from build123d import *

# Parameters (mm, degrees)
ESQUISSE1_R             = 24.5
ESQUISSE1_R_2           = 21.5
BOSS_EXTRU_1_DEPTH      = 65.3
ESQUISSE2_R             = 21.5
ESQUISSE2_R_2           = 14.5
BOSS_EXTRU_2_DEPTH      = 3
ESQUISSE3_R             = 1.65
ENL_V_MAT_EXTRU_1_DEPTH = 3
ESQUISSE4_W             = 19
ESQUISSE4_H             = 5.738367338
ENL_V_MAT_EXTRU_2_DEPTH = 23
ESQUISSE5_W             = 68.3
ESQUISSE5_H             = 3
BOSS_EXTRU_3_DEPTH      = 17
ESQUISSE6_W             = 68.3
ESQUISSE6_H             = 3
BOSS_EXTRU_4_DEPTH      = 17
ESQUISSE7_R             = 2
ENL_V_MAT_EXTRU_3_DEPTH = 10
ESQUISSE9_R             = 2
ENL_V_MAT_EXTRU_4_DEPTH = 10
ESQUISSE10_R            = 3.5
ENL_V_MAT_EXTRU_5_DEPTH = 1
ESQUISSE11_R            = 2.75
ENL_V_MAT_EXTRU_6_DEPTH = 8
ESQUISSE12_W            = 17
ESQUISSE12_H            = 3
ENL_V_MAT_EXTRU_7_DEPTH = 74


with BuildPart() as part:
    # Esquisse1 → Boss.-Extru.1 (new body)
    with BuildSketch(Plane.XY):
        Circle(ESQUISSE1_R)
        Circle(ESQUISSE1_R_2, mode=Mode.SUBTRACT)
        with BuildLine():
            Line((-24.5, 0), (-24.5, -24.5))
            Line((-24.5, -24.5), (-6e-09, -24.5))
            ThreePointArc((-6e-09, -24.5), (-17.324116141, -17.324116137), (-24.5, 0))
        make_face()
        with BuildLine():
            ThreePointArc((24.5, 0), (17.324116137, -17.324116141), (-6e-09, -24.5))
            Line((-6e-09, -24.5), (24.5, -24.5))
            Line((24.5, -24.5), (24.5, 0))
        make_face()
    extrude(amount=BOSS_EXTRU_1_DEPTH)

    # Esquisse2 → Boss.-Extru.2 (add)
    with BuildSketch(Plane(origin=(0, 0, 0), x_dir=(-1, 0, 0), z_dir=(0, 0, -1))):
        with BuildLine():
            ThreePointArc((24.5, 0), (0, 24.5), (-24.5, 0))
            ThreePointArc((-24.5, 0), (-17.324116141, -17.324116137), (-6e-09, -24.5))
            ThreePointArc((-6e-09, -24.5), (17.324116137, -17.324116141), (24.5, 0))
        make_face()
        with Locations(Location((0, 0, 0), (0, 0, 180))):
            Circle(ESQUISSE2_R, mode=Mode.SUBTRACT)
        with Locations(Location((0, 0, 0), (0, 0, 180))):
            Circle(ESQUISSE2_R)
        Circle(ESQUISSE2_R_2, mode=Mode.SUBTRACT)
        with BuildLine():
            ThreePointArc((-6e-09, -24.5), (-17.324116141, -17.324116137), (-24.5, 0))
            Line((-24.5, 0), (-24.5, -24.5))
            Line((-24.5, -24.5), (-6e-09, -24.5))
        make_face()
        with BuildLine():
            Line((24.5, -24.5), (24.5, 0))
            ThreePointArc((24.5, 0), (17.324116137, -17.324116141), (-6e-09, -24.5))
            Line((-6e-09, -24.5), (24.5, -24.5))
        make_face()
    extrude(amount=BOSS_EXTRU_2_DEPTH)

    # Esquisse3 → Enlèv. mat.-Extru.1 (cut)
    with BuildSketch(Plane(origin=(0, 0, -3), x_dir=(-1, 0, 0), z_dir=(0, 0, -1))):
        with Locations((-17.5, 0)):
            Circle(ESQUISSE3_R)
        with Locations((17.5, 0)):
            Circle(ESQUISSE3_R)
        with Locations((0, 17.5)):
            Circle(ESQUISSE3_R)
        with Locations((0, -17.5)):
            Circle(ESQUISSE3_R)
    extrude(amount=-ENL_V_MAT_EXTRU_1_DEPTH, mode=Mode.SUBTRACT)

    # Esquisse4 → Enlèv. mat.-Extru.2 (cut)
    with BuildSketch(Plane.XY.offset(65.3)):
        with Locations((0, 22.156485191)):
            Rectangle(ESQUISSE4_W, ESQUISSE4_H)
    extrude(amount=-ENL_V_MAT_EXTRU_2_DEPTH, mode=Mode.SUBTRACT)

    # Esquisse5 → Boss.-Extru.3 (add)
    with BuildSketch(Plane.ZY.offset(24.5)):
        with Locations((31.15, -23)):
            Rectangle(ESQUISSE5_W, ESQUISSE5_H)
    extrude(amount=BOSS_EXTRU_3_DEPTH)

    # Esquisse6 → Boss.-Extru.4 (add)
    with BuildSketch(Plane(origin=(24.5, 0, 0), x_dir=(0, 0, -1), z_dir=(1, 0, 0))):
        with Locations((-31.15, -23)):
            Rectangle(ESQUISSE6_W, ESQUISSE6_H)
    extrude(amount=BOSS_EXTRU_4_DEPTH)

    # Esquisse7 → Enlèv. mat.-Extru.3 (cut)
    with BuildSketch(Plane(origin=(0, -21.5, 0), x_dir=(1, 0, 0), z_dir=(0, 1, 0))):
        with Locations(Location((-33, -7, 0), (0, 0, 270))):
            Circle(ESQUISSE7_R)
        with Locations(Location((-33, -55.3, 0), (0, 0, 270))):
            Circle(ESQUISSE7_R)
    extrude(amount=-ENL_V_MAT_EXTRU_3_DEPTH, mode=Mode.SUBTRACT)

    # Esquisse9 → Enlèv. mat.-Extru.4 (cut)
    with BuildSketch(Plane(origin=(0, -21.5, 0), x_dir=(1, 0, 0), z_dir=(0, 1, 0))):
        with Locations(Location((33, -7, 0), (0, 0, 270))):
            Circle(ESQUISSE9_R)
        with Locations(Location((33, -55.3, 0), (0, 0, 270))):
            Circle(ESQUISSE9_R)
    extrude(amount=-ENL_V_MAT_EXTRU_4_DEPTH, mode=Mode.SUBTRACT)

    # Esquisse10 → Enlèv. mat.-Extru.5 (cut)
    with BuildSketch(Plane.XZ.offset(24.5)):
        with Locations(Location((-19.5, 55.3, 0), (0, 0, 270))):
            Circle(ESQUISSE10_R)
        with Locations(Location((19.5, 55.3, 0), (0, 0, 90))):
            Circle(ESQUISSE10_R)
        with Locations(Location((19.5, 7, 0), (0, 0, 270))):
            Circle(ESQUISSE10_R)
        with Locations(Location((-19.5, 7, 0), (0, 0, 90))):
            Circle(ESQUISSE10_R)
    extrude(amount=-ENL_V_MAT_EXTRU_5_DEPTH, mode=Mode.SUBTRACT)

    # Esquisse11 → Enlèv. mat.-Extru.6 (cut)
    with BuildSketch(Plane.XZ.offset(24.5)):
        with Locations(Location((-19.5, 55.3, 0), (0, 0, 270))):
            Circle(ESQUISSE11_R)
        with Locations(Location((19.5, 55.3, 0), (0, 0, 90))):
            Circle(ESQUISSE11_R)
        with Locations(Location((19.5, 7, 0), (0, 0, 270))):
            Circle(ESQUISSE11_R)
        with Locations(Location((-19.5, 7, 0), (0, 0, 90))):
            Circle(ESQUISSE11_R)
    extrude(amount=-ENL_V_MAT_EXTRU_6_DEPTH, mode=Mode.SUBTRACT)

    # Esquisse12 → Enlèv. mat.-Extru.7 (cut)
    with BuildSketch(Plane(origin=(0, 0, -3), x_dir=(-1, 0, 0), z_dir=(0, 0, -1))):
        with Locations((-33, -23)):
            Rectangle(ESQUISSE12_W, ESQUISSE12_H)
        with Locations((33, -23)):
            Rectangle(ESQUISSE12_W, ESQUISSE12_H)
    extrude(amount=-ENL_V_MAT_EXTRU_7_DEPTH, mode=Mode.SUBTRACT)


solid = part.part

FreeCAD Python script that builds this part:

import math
import FreeCAD as App
import Part
import Sketcher

V = App.Vector
Q = App.Units.Quantity

doc = App.newDocument("Part")
body = doc.addObject("PartDesign::Body", "Body")

sketch1 = body.newObject("Sketcher::SketchObject", "Sketch")
sketch1.AttachmentSupport = (doc.getObject("XY_Plane"), [""])
sketch1.MapMode = "FlatFace"
sketch1.addGeometry(Part.LineSegment(V(-24.5, 0, 0), V(-24.5, -24.5, 0)), False)
sketch1.addGeometry(Part.LineSegment(V(-24.5, -24.5, 0), V(24.5, -24.5, 0)), False)
sketch1.addGeometry(Part.LineSegment(V(24.5, -24.5, 0), V(24.5, 0, 0)), False)
sketch1.addGeometry(Part.ArcOfCircle(Part.Circle(V(0, 0, 0), V(0, 0, 1), 24.5), math.radians(0), math.radians(180)), False)
sketch1.addGeometry(Part.Circle(V(0, 0, 0), V(0, 0, 1), 21.5), False)
sketch1.addConstraint(Sketcher.Constraint("Coincident", 0, 2, 1, 1))
sketch1.addConstraint(Sketcher.Constraint("Coincident", 1, 2, 2, 1))
sketch1.addConstraint(Sketcher.Constraint("Tangent", 2, 2, 3, 1))
sketch1.addConstraint(Sketcher.Constraint("Tangent", 3, 2, 0, 1))
sketch1.addConstraint(Sketcher.Constraint("Vertical", 0))
sketch1.addConstraint(Sketcher.Constraint("Horizontal", 1))
sketch1.addConstraint(Sketcher.Constraint("Vertical", 2))
sketch1.addConstraint(Sketcher.Constraint("Coincident", 3, 3, -1, 1))
sketch1.addConstraint(Sketcher.Constraint("Coincident", 4, 3, -1, 1))
sketch1.addConstraint(Sketcher.Constraint("Diameter", 4, Q("43 mm")))
sketch1.addConstraint(Sketcher.Constraint("Radius", 3, Q("24.5 mm")))
sketch1.addConstraint(Sketcher.Constraint("DistanceY", 0, 2, 0, 1, Q("24.5 mm")))
pad1 = body.newObject("PartDesign::Pad", "Pad")
pad1.Profile = sketch1
pad1.Length = 65.3

sketch2 = body.newObject("Sketcher::SketchObject", "Sketch001")
sketch2.AttachmentSupport = (doc.getObject("XY_Plane"), [""])
sketch2.MapMode = "FlatFace"
sketch2.addGeometry(Part.ArcOfCircle(Part.Circle(V(0, 0, 0), V(0, 0, 1), 24.5), math.radians(0), math.radians(180)), False)
sketch2.addGeometry(Part.LineSegment(V(24.5, 0, 0), V(24.5, -24.5, 0)), False)
sketch2.addGeometry(Part.LineSegment(V(24.5, -24.5, 0), V(-24.5, -24.5, 0)), False)
sketch2.addGeometry(Part.LineSegment(V(-24.5, -24.5, 0), V(-24.5, 0, 0)), False)
sketch2.addGeometry(Part.Circle(V(0, 0, 0), V(0, 0, 1), 14.5), False)
sketch2.addConstraint(Sketcher.Constraint("Tangent", 0, 1, 1, 1))
sketch2.addConstraint(Sketcher.Constraint("Coincident", 1, 2, 2, 1))
sketch2.addConstraint(Sketcher.Constraint("Coincident", 2, 2, 3, 1))
sketch2.addConstraint(Sketcher.Constraint("Tangent", 3, 2, 0, 2))
sketch2.addConstraint(Sketcher.Constraint("Vertical", 1))
sketch2.addConstraint(Sketcher.Constraint("Horizontal", 2))
sketch2.addConstraint(Sketcher.Constraint("Vertical", 3))
sketch2.addConstraint(Sketcher.Constraint("Coincident", 0, 3, -1, 1))
sketch2.addConstraint(Sketcher.Constraint("Coincident", 4, 3, -1, 1))
sketch2.addConstraint(Sketcher.Constraint("Diameter", 4, Q("29 mm")))
sketch2.addConstraint(Sketcher.Constraint("Radius", 0, Q("24.5 mm")))
sketch2.addConstraint(Sketcher.Constraint("DistanceY", 1, 2, 1, 1, Q("24.5 mm")))
pad2 = body.newObject("PartDesign::Pad", "Pad001")
pad2.Profile = sketch2
pad2.Length = 3
pad2.Reversed = True

sketch3 = body.newObject("Sketcher::SketchObject", "Sketch002")
sketch3.AttachmentSupport = (doc.getObject("XY_Plane"), [""])
sketch3.MapMode = "FlatFace"
sketch3.AttachmentOffset = App.Placement(V(0, 0, -3), App.Rotation())
sketch3.addGeometry(Part.Circle(V(17.5, 0, 0), V(0, 0, 1), 1.65), False)
sketch3.addGeometry(Part.Circle(V(-17.5, 0, 0), V(0, 0, 1), 1.65), False)
sketch3.addGeometry(Part.Circle(V(0, 17.5, 0), V(0, 0, 1), 1.65), False)
sketch3.addGeometry(Part.Circle(V(0, -17.5, 0), V(0, 0, 1), 1.65), False)
sketch3.addConstraint(Sketcher.Constraint("Equal", 0, 1))
sketch3.addConstraint(Sketcher.Constraint("Equal", 1, 2))
sketch3.addConstraint(Sketcher.Constraint("Equal", 2, 3))
sketch3.addConstraint(Sketcher.Constraint("Symmetric", 0, 3, 1, 3, -1, 1))
sketch3.addConstraint(Sketcher.Constraint("Symmetric", 2, 3, 3, 3, -1, 1))
sketch3.addConstraint(Sketcher.Constraint("PointOnObject", 0, 3, -1))
sketch3.addConstraint(Sketcher.Constraint("PointOnObject", 2, 3, -2))
sketch3.addConstraint(Sketcher.Constraint("Diameter", 0, Q("3.3 mm")))
sketch3.addConstraint(Sketcher.Constraint("DistanceX", 1, 3, 0, 3, Q("35 mm")))
sketch3.addConstraint(Sketcher.Constraint("DistanceY", 3, 3, 2, 3, Q("35 mm")))
pocket1 = body.newObject("PartDesign::Pocket", "Pocket")
pocket1.Profile = sketch3
pocket1.Length = 3
pocket1.Reversed = True

sketch4 = body.newObject("Sketcher::SketchObject", "Sketch003")
sketch4.AttachmentSupport = (doc.getObject("XY_Plane"), [""])
sketch4.MapMode = "FlatFace"
sketch4.AttachmentOffset = App.Placement(V(0, 0, 65.3), App.Rotation())
sketch4.addGeometry(Part.LineSegment(V(-9.5, 25.025669, 0), V(-9.5, 19.287302, 0)), False)
sketch4.addGeometry(Part.LineSegment(V(-9.5, 19.287302, 0), V(9.5, 19.287302, 0)), False)
sketch4.addGeometry(Part.LineSegment(V(9.5, 19.287302, 0), V(9.5, 25.025669, 0)), False)
sketch4.addGeometry(Part.LineSegment(V(9.5, 25.025669, 0), V(-9.5, 25.025669, 0)), False)
sketch4.addConstraint(Sketcher.Constraint("Coincident", 0, 2, 1, 1))
sketch4.addConstraint(Sketcher.Constraint("Coincident", 1, 2, 2, 1))
sketch4.addConstraint(Sketcher.Constraint("Coincident", 2, 2, 3, 1))
sketch4.addConstraint(Sketcher.Constraint("Coincident", 3, 2, 0, 1))
sketch4.addConstraint(Sketcher.Constraint("Vertical", 0))
sketch4.addConstraint(Sketcher.Constraint("Horizontal", 1))
sketch4.addConstraint(Sketcher.Constraint("Vertical", 2))
sketch4.addConstraint(Sketcher.Constraint("Horizontal", 3))
sketch4.addConstraint(Sketcher.Constraint("DistanceX", 1, 1, 1, 2, Q("19 mm")))
sketch4.addConstraint(Sketcher.Constraint("DistanceX", 0, 2, -1, 1, Q("9.5 mm")))
sketch4.addConstraint(Sketcher.Constraint("DistanceY", -1, 1, 0, 2, Q("19.287302 mm")))
sketch4.addConstraint(Sketcher.Constraint("DistanceY", 0, 2, 0, 1, Q("5.738367 mm")))
pocket2 = body.newObject("PartDesign::Pocket", "Pocket001")
pocket2.Profile = sketch4
pocket2.Length = 23

sketch5 = body.newObject("Sketcher::SketchObject", "Sketch004")
sketch5.AttachmentSupport = (doc.getObject("YZ_Plane"), [""])
sketch5.MapMode = "FlatFace"
sketch5.AttachmentOffset = App.Placement(V(0, 0, -24.5), App.Rotation())
sketch5.addGeometry(Part.LineSegment(V(-21.5, -3, 0), V(-24.5, -3, 0)), False)
sketch5.addGeometry(Part.LineSegment(V(-24.5, -3, 0), V(-24.5, 65.3, 0)), False)
sketch5.addGeometry(Part.LineSegment(V(-24.5, 65.3, 0), V(-21.5, 65.3, 0)), False)
sketch5.addGeometry(Part.LineSegment(V(-21.5, 65.3, 0), V(-21.5, -3, 0)), False)
sketch5.addConstraint(Sketcher.Constraint("Coincident", 0, 2, 1, 1))
sketch5.addConstraint(Sketcher.Constraint("Coincident", 1, 2, 2, 1))
sketch5.addConstraint(Sketcher.Constraint("Coincident", 2, 2, 3, 1))
sketch5.addConstraint(Sketcher.Constraint("Coincident", 3, 2, 0, 1))
sketch5.addConstraint(Sketcher.Constraint("Horizontal", 0))
sketch5.addConstraint(Sketcher.Constraint("Vertical", 1))
sketch5.addConstraint(Sketcher.Constraint("Horizontal", 2))
sketch5.addConstraint(Sketcher.Constraint("Vertical", 3))
sketch5.addConstraint(Sketcher.Constraint("DistanceX", 0, 2, 0, 1, Q("3 mm")))
sketch5.addConstraint(Sketcher.Constraint("DistanceY", 1, 1, 1, 2, Q("68.3 mm")))
sketch5.addConstraint(Sketcher.Constraint("DistanceY", 0, 2, -1, 1, Q("3 mm")))
sketch5.addConstraint(Sketcher.Constraint("DistanceX", 0, 2, -1, 1, Q("24.5 mm")))
pad3 = body.newObject("PartDesign::Pad", "Pad002")
pad3.Profile = sketch5
pad3.Length = 17
pad3.Reversed = True

sketch6 = body.newObject("Sketcher::SketchObject", "Sketch005")
sketch6.AttachmentSupport = (doc.getObject("YZ_Plane"), [""])
sketch6.MapMode = "FlatFace"
sketch6.AttachmentOffset = App.Placement(V(0, 0, 24.5), App.Rotation())
sketch6.addGeometry(Part.LineSegment(V(-21.5, 65.3, 0), V(-24.5, 65.3, 0)), False)
sketch6.addGeometry(Part.LineSegment(V(-24.5, 65.3, 0), V(-24.5, -3, 0)), False)
sketch6.addGeometry(Part.LineSegment(V(-24.5, -3, 0), V(-21.5, -3, 0)), False)
sketch6.addGeometry(Part.LineSegment(V(-21.5, -3, 0), V(-21.5, 65.3, 0)), False)
sketch6.addConstraint(Sketcher.Constraint("Coincident", 0, 2, 1, 1))
sketch6.addConstraint(Sketcher.Constraint("Coincident", 1, 2, 2, 1))
sketch6.addConstraint(Sketcher.Constraint("Coincident", 2, 2, 3, 1))
sketch6.addConstraint(Sketcher.Constraint("Coincident", 3, 2, 0, 1))
sketch6.addConstraint(Sketcher.Constraint("Horizontal", 0))
sketch6.addConstraint(Sketcher.Constraint("Vertical", 1))
sketch6.addConstraint(Sketcher.Constraint("Horizontal", 2))
sketch6.addConstraint(Sketcher.Constraint("Vertical", 3))
sketch6.addConstraint(Sketcher.Constraint("DistanceX", 0, 2, 0, 1, Q("3 mm")))
sketch6.addConstraint(Sketcher.Constraint("DistanceY", 1, 2, 1, 1, Q("68.3 mm")))
sketch6.addConstraint(Sketcher.Constraint("DistanceY", 1, 2, -1, 1, Q("3 mm")))
sketch6.addConstraint(Sketcher.Constraint("DistanceX", 0, 2, -1, 1, Q("24.5 mm")))
pad4 = body.newObject("PartDesign::Pad", "Pad003")
pad4.Profile = sketch6
pad4.Length = 17

sketch7 = body.newObject("Sketcher::SketchObject", "Sketch006")
sketch7.AttachmentSupport = (doc.getObject("XZ_Plane"), [""])
sketch7.MapMode = "FlatFace"
sketch7.AttachmentOffset = App.Placement(V(0, 0, 21.5), App.Rotation())
sketch7.addGeometry(Part.Circle(V(-33, 7, 0), V(0, 0, 1), 2), False)
sketch7.addGeometry(Part.Circle(V(-33, 55.3, 0), V(0, 0, 1), 2), False)
sketch7.addConstraint(Sketcher.Constraint("Equal", 0, 1))
sketch7.addConstraint(Sketcher.Constraint("Vertical", 0, 3, 1, 3))
sketch7.addConstraint(Sketcher.Constraint("Diameter", 0, Q("4 mm")))
sketch7.addConstraint(Sketcher.Constraint("DistanceX", 0, 3, -1, 1, Q("33 mm")))
sketch7.addConstraint(Sketcher.Constraint("DistanceY", -1, 1, 0, 3, Q("7 mm")))
sketch7.addConstraint(Sketcher.Constraint("DistanceY", -1, 1, 1, 3, Q("55.3 mm")))
pocket3 = body.newObject("PartDesign::Pocket", "Pocket002")
pocket3.Profile = sketch7
pocket3.Length = 10
pocket3.Reversed = True

sketch8 = body.newObject("Sketcher::SketchObject", "Sketch007")
sketch8.AttachmentSupport = (doc.getObject("XZ_Plane"), [""])
sketch8.MapMode = "FlatFace"
sketch8.AttachmentOffset = App.Placement(V(0, 0, 21.5), App.Rotation())
sketch8.addGeometry(Part.Circle(V(33, 7, 0), V(0, 0, 1), 2), False)
sketch8.addGeometry(Part.Circle(V(33, 55.3, 0), V(0, 0, 1), 2), False)
sketch8.addConstraint(Sketcher.Constraint("Equal", 0, 1))
sketch8.addConstraint(Sketcher.Constraint("Vertical", 0, 3, 1, 3))
sketch8.addConstraint(Sketcher.Constraint("Diameter", 0, Q("4 mm")))
sketch8.addConstraint(Sketcher.Constraint("DistanceX", -1, 1, 0, 3, Q("33 mm")))
sketch8.addConstraint(Sketcher.Constraint("DistanceY", -1, 1, 0, 3, Q("7 mm")))
sketch8.addConstraint(Sketcher.Constraint("DistanceY", -1, 1, 1, 3, Q("55.3 mm")))
pocket4 = body.newObject("PartDesign::Pocket", "Pocket003")
pocket4.Profile = sketch8
pocket4.Length = 10
pocket4.Reversed = True

sketch9 = body.newObject("Sketcher::SketchObject", "Sketch008")
sketch9.AttachmentSupport = (doc.getObject("XZ_Plane"), [""])
sketch9.MapMode = "FlatFace"
sketch9.AttachmentOffset = App.Placement(V(0, 0, 24.5), App.Rotation())
sketch9.addGeometry(Part.Circle(V(-19.5, 55.3, 0), V(0, 0, 1), 3.5), False)
sketch9.addGeometry(Part.Circle(V(19.5, 55.3, 0), V(0, 0, 1), 3.5), False)
sketch9.addGeometry(Part.Circle(V(19.5, 7, 0), V(0, 0, 1), 3.5), False)
sketch9.addGeometry(Part.Circle(V(-19.5, 7, 0), V(0, 0, 1), 3.5), False)
sketch9.addConstraint(Sketcher.Constraint("Equal", 0, 1))
sketch9.addConstraint(Sketcher.Constraint("Equal", 1, 2))
sketch9.addConstraint(Sketcher.Constraint("Equal", 2, 3))
sketch9.addConstraint(Sketcher.Constraint("Symmetric", 0, 3, 1, 3, -2))
sketch9.addConstraint(Sketcher.Constraint("Symmetric", 2, 3, 3, 3, -2))
sketch9.addConstraint(Sketcher.Constraint("Vertical", 1, 3, 2, 3))
sketch9.addConstraint(Sketcher.Constraint("Diameter", 0, Q("7 mm")))
sketch9.addConstraint(Sketcher.Constraint("DistanceY", -1, 1, 2, 3, Q("7 mm")))
sketch9.addConstraint(Sketcher.Constraint("DistanceX", 0, 3, 1, 3, Q("39 mm")))
sketch9.addConstraint(Sketcher.Constraint("DistanceY", -1, 1, 0, 3, Q("55.3 mm")))
pocket5 = body.newObject("PartDesign::Pocket", "Pocket004")
pocket5.Profile = sketch9
pocket5.Length = 1

sketch10 = body.newObject("Sketcher::SketchObject", "Sketch009")
sketch10.AttachmentSupport = (doc.getObject("XZ_Plane"), [""])
sketch10.MapMode = "FlatFace"
sketch10.AttachmentOffset = App.Placement(V(0, 0, 24.5), App.Rotation())
sketch10.addGeometry(Part.Circle(V(-19.5, 55.3, 0), V(0, 0, 1), 2.75), False)
sketch10.addGeometry(Part.Circle(V(19.5, 55.3, 0), V(0, 0, 1), 2.75), False)
sketch10.addGeometry(Part.Circle(V(19.5, 7, 0), V(0, 0, 1), 2.75), False)
sketch10.addGeometry(Part.Circle(V(-19.5, 7, 0), V(0, 0, 1), 2.75), False)
sketch10.addConstraint(Sketcher.Constraint("Equal", 0, 1))
sketch10.addConstraint(Sketcher.Constraint("Equal", 1, 2))
sketch10.addConstraint(Sketcher.Constraint("Equal", 2, 3))
sketch10.addConstraint(Sketcher.Constraint("Symmetric", 0, 3, 1, 3, -2))
sketch10.addConstraint(Sketcher.Constraint("Symmetric", 2, 3, 3, 3, -2))
sketch10.addConstraint(Sketcher.Constraint("Vertical", 1, 3, 2, 3))
sketch10.addConstraint(Sketcher.Constraint("Diameter", 0, Q("5.5 mm")))
sketch10.addConstraint(Sketcher.Constraint("DistanceY", -1, 1, 2, 3, Q("7 mm")))
sketch10.addConstraint(Sketcher.Constraint("DistanceX", 0, 3, 1, 3, Q("39 mm")))
sketch10.addConstraint(Sketcher.Constraint("DistanceY", -1, 1, 0, 3, Q("55.3 mm")))
pocket6 = body.newObject("PartDesign::Pocket", "Pocket005")
pocket6.Profile = sketch10
pocket6.Length = 8

sketch11 = body.newObject("Sketcher::SketchObject", "Sketch010")
sketch11.AttachmentSupport = (doc.getObject("XY_Plane"), [""])
sketch11.MapMode = "FlatFace"
sketch11.AttachmentOffset = App.Placement(V(0, 0, -3), App.Rotation())
sketch11.addGeometry(Part.LineSegment(V(41.5, -21.5, 0), V(41.5, -24.5, 0)), False)
sketch11.addGeometry(Part.LineSegment(V(41.5, -24.5, 0), V(24.5, -24.5, 0)), False)
sketch11.addGeometry(Part.LineSegment(V(24.5, -24.5, 0), V(24.5, -21.5, 0)), False)
sketch11.addGeometry(Part.LineSegment(V(24.5, -21.5, 0), V(41.5, -21.5, 0)), False)
sketch11.addGeometry(Part.LineSegment(V(-24.5, -21.5, 0), V(-24.5, -24.5, 0)), False)
sketch11.addGeometry(Part.LineSegment(V(-24.5, -24.5, 0), V(-41.5, -24.5, 0)), False)
sketch11.addGeometry(Part.LineSegment(V(-41.5, -24.5, 0), V(-41.5, -21.5, 0)), False)
sketch11.addGeometry(Part.LineSegment(V(-41.5, -21.5, 0), V(-24.5, -21.5, 0)), False)
sketch11.addConstraint(Sketcher.Constraint("Coincident", 0, 2, 1, 1))
sketch11.addConstraint(Sketcher.Constraint("Coincident", 1, 2, 2, 1))
sketch11.addConstraint(Sketcher.Constraint("Coincident", 2, 2, 3, 1))
sketch11.addConstraint(Sketcher.Constraint("Coincident", 3, 2, 0, 1))
sketch11.addConstraint(Sketcher.Constraint("Coincident", 4, 2, 5, 1))
sketch11.addConstraint(Sketcher.Constraint("Coincident", 5, 2, 6, 1))
sketch11.addConstraint(Sketcher.Constraint("Coincident", 6, 2, 7, 1))
sketch11.addConstraint(Sketcher.Constraint("Coincident", 7, 2, 4, 1))
sketch11.addConstraint(Sketcher.Constraint("Vertical", 0))
sketch11.addConstraint(Sketcher.Constraint("Horizontal", 1))
sketch11.addConstraint(Sketcher.Constraint("Vertical", 2))
sketch11.addConstraint(Sketcher.Constraint("Horizontal", 3))
sketch11.addConstraint(Sketcher.Constraint("Vertical", 4))
sketch11.addConstraint(Sketcher.Constraint("Horizontal", 5))
sketch11.addConstraint(Sketcher.Constraint("Vertical", 6))
sketch11.addConstraint(Sketcher.Constraint("Horizontal", 7))
sketch11.addConstraint(Sketcher.Constraint("Symmetric", 1, 2, 4, 2, -2))
sketch11.addConstraint(Sketcher.Constraint("Symmetric", 3, 2, 6, 2, -2))
sketch11.addConstraint(Sketcher.Constraint("DistanceX", 1, 2, 1, 1, Q("17 mm")))
sketch11.addConstraint(Sketcher.Constraint("DistanceY", 0, 2, 0, 1, Q("3 mm")))
sketch11.addConstraint(Sketcher.Constraint("DistanceX", 4, 2, 1, 2, Q("49 mm")))
sketch11.addConstraint(Sketcher.Constraint("DistanceY", 0, 2, -1, 1, Q("24.5 mm")))
pocket7 = body.newObject("PartDesign::Pocket", "Pocket006")
pocket7.Profile = sketch11
pocket7.Length = 74
pocket7.Reversed = True

doc.recompute()
